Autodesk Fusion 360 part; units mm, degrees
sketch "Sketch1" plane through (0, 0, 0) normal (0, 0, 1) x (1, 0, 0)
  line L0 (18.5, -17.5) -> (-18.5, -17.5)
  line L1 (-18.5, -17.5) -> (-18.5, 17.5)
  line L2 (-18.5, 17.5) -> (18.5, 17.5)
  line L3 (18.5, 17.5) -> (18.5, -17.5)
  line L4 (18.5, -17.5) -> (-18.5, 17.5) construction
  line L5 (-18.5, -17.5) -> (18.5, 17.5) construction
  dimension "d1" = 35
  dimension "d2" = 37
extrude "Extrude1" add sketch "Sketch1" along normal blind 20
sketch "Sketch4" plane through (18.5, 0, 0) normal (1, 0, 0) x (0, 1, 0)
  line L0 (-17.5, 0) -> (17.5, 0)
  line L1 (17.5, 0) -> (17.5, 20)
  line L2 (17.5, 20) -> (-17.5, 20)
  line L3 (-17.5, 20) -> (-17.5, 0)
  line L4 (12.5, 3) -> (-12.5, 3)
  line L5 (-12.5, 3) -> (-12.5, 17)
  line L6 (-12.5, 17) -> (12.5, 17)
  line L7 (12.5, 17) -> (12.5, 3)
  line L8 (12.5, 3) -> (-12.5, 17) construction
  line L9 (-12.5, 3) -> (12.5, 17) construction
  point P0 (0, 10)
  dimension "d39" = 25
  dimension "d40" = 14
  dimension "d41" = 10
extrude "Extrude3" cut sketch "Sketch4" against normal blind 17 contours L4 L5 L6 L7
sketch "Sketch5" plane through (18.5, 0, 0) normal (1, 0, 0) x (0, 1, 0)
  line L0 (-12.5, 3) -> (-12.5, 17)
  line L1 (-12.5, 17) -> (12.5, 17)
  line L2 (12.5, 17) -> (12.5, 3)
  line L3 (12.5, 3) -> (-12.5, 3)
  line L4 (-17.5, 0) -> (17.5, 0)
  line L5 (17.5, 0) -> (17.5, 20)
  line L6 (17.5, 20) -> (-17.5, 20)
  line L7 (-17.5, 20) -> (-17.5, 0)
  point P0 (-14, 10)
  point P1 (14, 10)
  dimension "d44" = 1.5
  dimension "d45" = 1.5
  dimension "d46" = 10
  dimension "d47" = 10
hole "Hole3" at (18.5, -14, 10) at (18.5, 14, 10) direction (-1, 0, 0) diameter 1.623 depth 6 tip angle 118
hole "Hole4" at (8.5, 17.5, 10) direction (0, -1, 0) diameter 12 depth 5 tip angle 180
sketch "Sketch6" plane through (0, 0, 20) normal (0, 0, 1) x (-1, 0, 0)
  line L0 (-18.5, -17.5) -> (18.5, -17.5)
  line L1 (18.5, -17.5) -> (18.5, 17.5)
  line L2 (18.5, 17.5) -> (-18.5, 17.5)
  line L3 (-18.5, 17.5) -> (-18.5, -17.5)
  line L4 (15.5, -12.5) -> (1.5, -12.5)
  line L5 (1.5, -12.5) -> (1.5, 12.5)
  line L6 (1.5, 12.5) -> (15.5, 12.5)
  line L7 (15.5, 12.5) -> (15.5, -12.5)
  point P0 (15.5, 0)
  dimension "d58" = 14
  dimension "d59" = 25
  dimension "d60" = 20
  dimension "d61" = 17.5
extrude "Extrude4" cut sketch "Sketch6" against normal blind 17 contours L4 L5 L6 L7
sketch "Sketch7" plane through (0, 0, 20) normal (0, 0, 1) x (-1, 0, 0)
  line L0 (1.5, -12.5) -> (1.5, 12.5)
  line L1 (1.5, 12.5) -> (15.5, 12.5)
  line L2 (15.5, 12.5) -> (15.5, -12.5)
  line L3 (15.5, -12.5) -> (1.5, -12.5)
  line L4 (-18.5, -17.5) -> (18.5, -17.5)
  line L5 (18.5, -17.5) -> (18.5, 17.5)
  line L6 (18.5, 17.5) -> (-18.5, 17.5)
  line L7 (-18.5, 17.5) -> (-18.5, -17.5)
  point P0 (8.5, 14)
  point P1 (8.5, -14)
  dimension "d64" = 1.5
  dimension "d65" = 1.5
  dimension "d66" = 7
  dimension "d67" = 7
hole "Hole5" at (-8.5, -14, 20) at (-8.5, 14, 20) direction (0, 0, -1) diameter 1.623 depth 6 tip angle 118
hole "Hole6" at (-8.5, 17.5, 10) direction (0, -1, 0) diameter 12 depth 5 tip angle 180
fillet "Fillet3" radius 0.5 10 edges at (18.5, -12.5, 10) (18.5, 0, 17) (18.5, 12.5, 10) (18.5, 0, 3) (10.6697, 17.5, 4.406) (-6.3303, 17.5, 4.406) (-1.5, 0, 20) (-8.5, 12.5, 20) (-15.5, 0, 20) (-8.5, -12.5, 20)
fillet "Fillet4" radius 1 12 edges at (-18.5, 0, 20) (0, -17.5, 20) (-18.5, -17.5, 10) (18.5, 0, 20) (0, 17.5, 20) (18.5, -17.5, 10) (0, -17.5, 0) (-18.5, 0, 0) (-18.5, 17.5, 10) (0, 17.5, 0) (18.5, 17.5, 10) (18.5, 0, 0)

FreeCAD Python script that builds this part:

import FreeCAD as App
import Part
import Sketcher


def edges_at(feature, points):
    """Names of the edges that pass closest to the given points."""
    edges = feature.Shape.Edges
    near = lambda p: min(range(len(edges)), key=lambda i: edges[i].distToShape(Part.Vertex(*p))[0])
    return sorted({f"Edge{near(p) + 1}" for p in points})

doc = App.newDocument("Part")
body = doc.addObject("PartDesign::Body", "Body")

# Sketch on XY plane
sketch1 = body.newObject("Sketcher::SketchObject", "Sketch")
sketch1.AttachmentSupport = (doc.getObject("XY_Plane"), [""])
sketch1.MapMode = "FlatFace"
sketch1.addGeometry(Part.LineSegment(App.Vector(-18.5, -17.5, 0), App.Vector(18.5, -17.5, 0)), False)
sketch1.addGeometry(Part.LineSegment(App.Vector(18.5, -17.5, 0), App.Vector(18.5, 17.5, 0)), False)
sketch1.addGeometry(Part.LineSegment(App.Vector(18.5, 17.5, 0), App.Vector(-18.5, 17.5, 0)), False)
sketch1.addGeometry(Part.LineSegment(App.Vector(-18.5, 17.5, 0), App.Vector(-18.5, -17.5, 0)), False)
sketch1.addConstraint(Sketcher.Constraint("Coincident", 0, 2, 1, 1))
sketch1.addConstraint(Sketcher.Constraint("Coincident", 1, 2, 2, 1))
sketch1.addConstraint(Sketcher.Constraint("Coincident", 2, 2, 3, 1))
sketch1.addConstraint(Sketcher.Constraint("Coincident", 3, 2, 0, 1))
sketch1.addConstraint(Sketcher.Constraint("Horizontal", 0))
sketch1.addConstraint(Sketcher.Constraint("Vertical", 1))
sketch1.addConstraint(Sketcher.Constraint("Horizontal", 2))
sketch1.addConstraint(Sketcher.Constraint("Vertical", 3))
sketch1.addConstraint(Sketcher.Constraint("Symmetric", 0, 2, 2, 2, -1, 1))
sketch1.addConstraint(Sketcher.Constraint("DistanceX", 0, 1, 0, 2, 37.0))
sketch1.addConstraint(Sketcher.Constraint("DistanceY", 1, 1, 1, 2, 35.0))
pad1 = body.newObject("PartDesign::Pad", "Pad")
pad1.Profile = sketch1
pad1.Length = 20

# Sketch on YZ plane
sketch2 = body.newObject("Sketcher::SketchObject", "Sketch001")
sketch2.AttachmentSupport = (doc.getObject("YZ_Plane"), [""])
sketch2.MapMode = "FlatFace"
sketch2.AttachmentOffset = App.Placement(App.Vector(0, 0, 18.5), App.Rotation())
sketch2.addGeometry(Part.LineSegment(App.Vector(-12.5, 3, 0), App.Vector(12.5, 3, 0)), False)
sketch2.addGeometry(Part.LineSegment(App.Vector(12.5, 3, 0), App.Vector(12.5, 17, 0)), False)
sketch2.addGeometry(Part.LineSegment(App.Vector(12.5, 17, 0), App.Vector(-12.5, 17, 0)), False)
sketch2.addGeometry(Part.LineSegment(App.Vector(-12.5, 17, 0), App.Vector(-12.5, 3, 0)), False)
sketch2.addConstraint(Sketcher.Constraint("Coincident", 0, 2, 1, 1))
sketch2.addConstraint(Sketcher.Constraint("Coincident", 1, 2, 2, 1))
sketch2.addConstraint(Sketcher.Constraint("Coincident", 2, 2, 3, 1))
sketch2.addConstraint(Sketcher.Constraint("Coincident", 3, 2, 0, 1))
sketch2.addConstraint(Sketcher.Constraint("Horizontal", 0))
sketch2.addConstraint(Sketcher.Constraint("Vertical", 1))
sketch2.addConstraint(Sketcher.Constraint("Horizontal", 2))
sketch2.addConstraint(Sketcher.Constraint("Vertical", 3))
sketch2.addConstraint(Sketcher.Constraint("DistanceX", 0, 1, 0, 2, 25.0))
sketch2.addConstraint(Sketcher.Constraint("DistanceY", 1, 1, 1, 2, 14.0))
sketch2.addConstraint(Sketcher.Constraint("DistanceY", -1, 1, 0, 2, 3.0))
sketch2.addConstraint(Sketcher.Constraint("DistanceX", -1, 1, 0, 2, 12.5))
pocket1 = body.newObject("PartDesign::Pocket", "Pocket")
pocket1.Profile = sketch2
pocket1.Length = 17

# Sketch on YZ plane
sketch3 = body.newObject("Sketcher::SketchObject", "Sketch002")
sketch3.AttachmentSupport = (doc.getObject("YZ_Plane"), [""])
sketch3.MapMode = "FlatFace"
sketch3.AttachmentOffset = App.Placement(App.Vector(0, 0, 18.5), App.Rotation())
sketch3.addGeometry(Part.Circle(App.Vector(-14, 10, 0), App.Vector(0, 0, 1), 0.8115), False)
sketch3.addGeometry(Part.Circle(App.Vector(14, 10, 0), App.Vector(0, 0, 1), 0.8115), False)
sketch3.addConstraint(Sketcher.Constraint("Equal", 0, 1))
sketch3.addConstraint(Sketcher.Constraint("Symmetric", 0, 3, 1, 3, -2))
sketch3.addConstraint(Sketcher.Constraint("Diameter", 0, 1.623))
sketch3.addConstraint(Sketcher.Constraint("DistanceX", 0, 3, -1, 1, 14.0))
sketch3.addConstraint(Sketcher.Constraint("DistanceY", -1, 1, 0, 3, 10.0))
doc.recompute()
hole = body.newObject("PartDesign::Hole", "Hole")
hole.Profile = sketch3
hole.ThreadType = "None"
hole.Diameter = 1.623
hole.DepthType = "Dimension"
hole.Depth = 6
hole.DrillPoint = "Angled"
hole.DrillPointAngle = 118

# Sketch on XZ plane
sketch4 = body.newObject("Sketcher::SketchObject", "Sketch003")
sketch4.AttachmentSupport = (doc.getObject("XZ_Plane"), [""])
sketch4.MapMode = "FlatFace"
sketch4.AttachmentOffset = App.Placement(App.Vector(0, 0, -17.5), App.Rotation())
sketch4.addGeometry(Part.Circle(App.Vector(8.5, 10, 0), App.Vector(0, 0, 1), 6), False)
sketch4.addConstraint(Sketcher.Constraint("Diameter", 0, 12.0))
sketch4.addConstraint(Sketcher.Constraint("DistanceY", -1, 1, 0, 3, 10.0))
sketch4.addConstraint(Sketcher.Constraint("DistanceX", -1, 1, 0, 3, 8.5))
doc.recompute()
hole2 = body.newObject("PartDesign::Hole", "Hole001")
hole2.Profile = sketch4
hole2.ThreadType = "None"
hole2.Diameter = 12
hole2.DepthType = "Dimension"
hole2.Depth = 5
hole2.DrillPoint = "Flat"
hole2.Reversed = True

# Sketch on XY plane
sketch5 = body.newObject("Sketcher::SketchObject", "Sketch004")
sketch5.AttachmentSupport = (doc.getObject("XY_Plane"), [""])
sketch5.MapMode = "FlatFace"
sketch5.AttachmentOffset = App.Placement(App.Vector(0, 0, 20), App.Rotation())
sketch5.addGeometry(Part.LineSegment(App.Vector(-1.5, 12.5, 0), App.Vector(-15.5, 12.5, 0)), False)
sketch5.addGeometry(Part.LineSegment(App.Vector(-15.5, 12.5, 0), App.Vector(-15.5, -12.5, 0)), False)
sketch5.addGeometry(Part.LineSegment(App.Vector(-15.5, -12.5, 0), App.Vector(-1.5, -12.5, 0)), False)
sketch5.addGeometry(Part.LineSegment(App.Vector(-1.5, -12.5, 0), App.Vector(-1.5, 12.5, 0)), False)
sketch5.addConstraint(Sketcher.Constraint("Coincident", 0, 2, 1, 1))
sketch5.addConstraint(Sketcher.Constraint("Coincident", 1, 2, 2, 1))
sketch5.addConstraint(Sketcher.Constraint("Coincident", 2, 2, 3, 1))
sketch5.addConstraint(Sketcher.Constraint("Coincident", 3, 2, 0, 1))
sketch5.addConstraint(Sketcher.Constraint("Horizontal", 0))
sketch5.addConstraint(Sketcher.Constraint("Vertical", 1))
sketch5.addConstraint(Sketcher.Constraint("Horizontal", 2))
sketch5.addConstraint(Sketcher.Constraint("Vertical", 3))
sketch5.addConstraint(Sketcher.Constraint("DistanceX", 0, 2, 0, 1, 14.0))
sketch5.addConstraint(Sketcher.Constraint("DistanceY", 1, 2, 1, 1, 25.0))
sketch5.addConstraint(Sketcher.Constraint("DistanceX", 0, 2, -1, 1, 15.5))
sketch5.addConstraint(Sketcher.Constraint("DistanceY", -1, 1, 0, 2, 12.5))
pocket2 = body.newObject("PartDesign::Pocket", "Pocket001")
pocket2.Profile = sketch5
pocket2.Length = 17

# Sketch on XY plane
sketch6 = body.newObject("Sketcher::SketchObject", "Sketch005")
sketch6.AttachmentSupport = (doc.getObject("XY_Plane"), [""])
sketch6.MapMode = "FlatFace"
sketch6.AttachmentOffset = App.Placement(App.Vector(0, 0, 20), App.Rotation())
sketch6.addGeometry(Part.Circle(App.Vector(-8.5, -14, 0), App.Vector(0, 0, 1), 0.8115), False)
sketch6.addGeometry(Part.Circle(App.Vector(-8.5, 14, 0), App.Vector(0, 0, 1), 0.8115), False)
sketch6.addConstraint(Sketcher.Constraint("Equal", 0, 1))
sketch6.addConstraint(Sketcher.Constraint("Symmetric", 0, 3, 1, 3, -1))
sketch6.addConstraint(Sketcher.Constraint("Diameter", 0, 1.623))
sketch6.addConstraint(Sketcher.Constraint("DistanceY", 0, 3, -1, 1, 14.0))
sketch6.addConstraint(Sketcher.Constraint("DistanceX", 0, 3, -1, 1, 8.5))
doc.recompute()
hole3 = body.newObject("PartDesign::Hole", "Hole002")
hole3.Profile = sketch6
hole3.ThreadType = "None"
hole3.Diameter = 1.623
hole3.DepthType = "Dimension"
hole3.Depth = 6
hole3.DrillPoint = "Angled"
hole3.DrillPointAngle = 118

# Sketch on XZ plane
sketch7 = body.newObject("Sketcher::SketchObject", "Sketch006")
sketch7.AttachmentSupport = (doc.getObject("XZ_Plane"), [""])
sketch7.MapMode = "FlatFace"
sketch7.AttachmentOffset = App.Placement(App.Vector(0, 0, -17.5), App.Rotation())
sketch7.addGeometry(Part.Circle(App.Vector(-8.5, 10, 0), App.Vector(0, 0, 1), 6), False)
sketch7.addConstraint(Sketcher.Constraint("Diameter", 0, 12.0))
sketch7.addConstraint(Sketcher.Constraint("DistanceY", -1, 1, 0, 3, 10.0))
sketch7.addConstraint(Sketcher.Constraint("DistanceX", 0, 3, -1, 1, 8.5))
doc.recompute()
hole4 = body.newObject("PartDesign::Hole", "Hole003")
hole4.Profile = sketch7
hole4.ThreadType = "None"
hole4.Diameter = 12
hole4.DepthType = "Dimension"
hole4.Depth = 5
hole4.DrillPoint = "Flat"
hole4.Reversed = True
doc.recompute()

fillet = body.newObject("PartDesign::Fillet", "Fillet")
fillet.Base = (hole4, edges_at(hole4, [
    (18.5, -12.5, 10),
    (18.5, 0, 17),
    (18.5, 12.5, 10),
    (18.5, 0, 3),
    (10.67, 17.5, 4.406),
    (-6.33, 17.5, 4.406),
    (-1.5, 0, 20),
    (-8.5, 12.5, 20),
    (-15.5, 0, 20),
    (-8.5, -12.5, 20),
]))
fillet.Radius = 0.5
doc.recompute()

fillet2 = body.newObject("PartDesign::Fillet", "Fillet001")
fillet2.Base = (fillet, edges_at(fillet, [
    (-18.5, 0, 20),
    (0, -17.5, 20),
    (-18.5, -17.5, 10),
    (18.5, 0, 20),
    (0, 17.5, 20),
    (18.5, -17.5, 10),
    (0, -17.5, 0),
    (-18.5, 0, 0),
    (-18.5, 17.5, 10),
    (0, 17.5, 0),
    (18.5, 17.5, 10),
    (18.5, 0, 0),
]))
fillet2.Radius = 1

doc.recompute()
